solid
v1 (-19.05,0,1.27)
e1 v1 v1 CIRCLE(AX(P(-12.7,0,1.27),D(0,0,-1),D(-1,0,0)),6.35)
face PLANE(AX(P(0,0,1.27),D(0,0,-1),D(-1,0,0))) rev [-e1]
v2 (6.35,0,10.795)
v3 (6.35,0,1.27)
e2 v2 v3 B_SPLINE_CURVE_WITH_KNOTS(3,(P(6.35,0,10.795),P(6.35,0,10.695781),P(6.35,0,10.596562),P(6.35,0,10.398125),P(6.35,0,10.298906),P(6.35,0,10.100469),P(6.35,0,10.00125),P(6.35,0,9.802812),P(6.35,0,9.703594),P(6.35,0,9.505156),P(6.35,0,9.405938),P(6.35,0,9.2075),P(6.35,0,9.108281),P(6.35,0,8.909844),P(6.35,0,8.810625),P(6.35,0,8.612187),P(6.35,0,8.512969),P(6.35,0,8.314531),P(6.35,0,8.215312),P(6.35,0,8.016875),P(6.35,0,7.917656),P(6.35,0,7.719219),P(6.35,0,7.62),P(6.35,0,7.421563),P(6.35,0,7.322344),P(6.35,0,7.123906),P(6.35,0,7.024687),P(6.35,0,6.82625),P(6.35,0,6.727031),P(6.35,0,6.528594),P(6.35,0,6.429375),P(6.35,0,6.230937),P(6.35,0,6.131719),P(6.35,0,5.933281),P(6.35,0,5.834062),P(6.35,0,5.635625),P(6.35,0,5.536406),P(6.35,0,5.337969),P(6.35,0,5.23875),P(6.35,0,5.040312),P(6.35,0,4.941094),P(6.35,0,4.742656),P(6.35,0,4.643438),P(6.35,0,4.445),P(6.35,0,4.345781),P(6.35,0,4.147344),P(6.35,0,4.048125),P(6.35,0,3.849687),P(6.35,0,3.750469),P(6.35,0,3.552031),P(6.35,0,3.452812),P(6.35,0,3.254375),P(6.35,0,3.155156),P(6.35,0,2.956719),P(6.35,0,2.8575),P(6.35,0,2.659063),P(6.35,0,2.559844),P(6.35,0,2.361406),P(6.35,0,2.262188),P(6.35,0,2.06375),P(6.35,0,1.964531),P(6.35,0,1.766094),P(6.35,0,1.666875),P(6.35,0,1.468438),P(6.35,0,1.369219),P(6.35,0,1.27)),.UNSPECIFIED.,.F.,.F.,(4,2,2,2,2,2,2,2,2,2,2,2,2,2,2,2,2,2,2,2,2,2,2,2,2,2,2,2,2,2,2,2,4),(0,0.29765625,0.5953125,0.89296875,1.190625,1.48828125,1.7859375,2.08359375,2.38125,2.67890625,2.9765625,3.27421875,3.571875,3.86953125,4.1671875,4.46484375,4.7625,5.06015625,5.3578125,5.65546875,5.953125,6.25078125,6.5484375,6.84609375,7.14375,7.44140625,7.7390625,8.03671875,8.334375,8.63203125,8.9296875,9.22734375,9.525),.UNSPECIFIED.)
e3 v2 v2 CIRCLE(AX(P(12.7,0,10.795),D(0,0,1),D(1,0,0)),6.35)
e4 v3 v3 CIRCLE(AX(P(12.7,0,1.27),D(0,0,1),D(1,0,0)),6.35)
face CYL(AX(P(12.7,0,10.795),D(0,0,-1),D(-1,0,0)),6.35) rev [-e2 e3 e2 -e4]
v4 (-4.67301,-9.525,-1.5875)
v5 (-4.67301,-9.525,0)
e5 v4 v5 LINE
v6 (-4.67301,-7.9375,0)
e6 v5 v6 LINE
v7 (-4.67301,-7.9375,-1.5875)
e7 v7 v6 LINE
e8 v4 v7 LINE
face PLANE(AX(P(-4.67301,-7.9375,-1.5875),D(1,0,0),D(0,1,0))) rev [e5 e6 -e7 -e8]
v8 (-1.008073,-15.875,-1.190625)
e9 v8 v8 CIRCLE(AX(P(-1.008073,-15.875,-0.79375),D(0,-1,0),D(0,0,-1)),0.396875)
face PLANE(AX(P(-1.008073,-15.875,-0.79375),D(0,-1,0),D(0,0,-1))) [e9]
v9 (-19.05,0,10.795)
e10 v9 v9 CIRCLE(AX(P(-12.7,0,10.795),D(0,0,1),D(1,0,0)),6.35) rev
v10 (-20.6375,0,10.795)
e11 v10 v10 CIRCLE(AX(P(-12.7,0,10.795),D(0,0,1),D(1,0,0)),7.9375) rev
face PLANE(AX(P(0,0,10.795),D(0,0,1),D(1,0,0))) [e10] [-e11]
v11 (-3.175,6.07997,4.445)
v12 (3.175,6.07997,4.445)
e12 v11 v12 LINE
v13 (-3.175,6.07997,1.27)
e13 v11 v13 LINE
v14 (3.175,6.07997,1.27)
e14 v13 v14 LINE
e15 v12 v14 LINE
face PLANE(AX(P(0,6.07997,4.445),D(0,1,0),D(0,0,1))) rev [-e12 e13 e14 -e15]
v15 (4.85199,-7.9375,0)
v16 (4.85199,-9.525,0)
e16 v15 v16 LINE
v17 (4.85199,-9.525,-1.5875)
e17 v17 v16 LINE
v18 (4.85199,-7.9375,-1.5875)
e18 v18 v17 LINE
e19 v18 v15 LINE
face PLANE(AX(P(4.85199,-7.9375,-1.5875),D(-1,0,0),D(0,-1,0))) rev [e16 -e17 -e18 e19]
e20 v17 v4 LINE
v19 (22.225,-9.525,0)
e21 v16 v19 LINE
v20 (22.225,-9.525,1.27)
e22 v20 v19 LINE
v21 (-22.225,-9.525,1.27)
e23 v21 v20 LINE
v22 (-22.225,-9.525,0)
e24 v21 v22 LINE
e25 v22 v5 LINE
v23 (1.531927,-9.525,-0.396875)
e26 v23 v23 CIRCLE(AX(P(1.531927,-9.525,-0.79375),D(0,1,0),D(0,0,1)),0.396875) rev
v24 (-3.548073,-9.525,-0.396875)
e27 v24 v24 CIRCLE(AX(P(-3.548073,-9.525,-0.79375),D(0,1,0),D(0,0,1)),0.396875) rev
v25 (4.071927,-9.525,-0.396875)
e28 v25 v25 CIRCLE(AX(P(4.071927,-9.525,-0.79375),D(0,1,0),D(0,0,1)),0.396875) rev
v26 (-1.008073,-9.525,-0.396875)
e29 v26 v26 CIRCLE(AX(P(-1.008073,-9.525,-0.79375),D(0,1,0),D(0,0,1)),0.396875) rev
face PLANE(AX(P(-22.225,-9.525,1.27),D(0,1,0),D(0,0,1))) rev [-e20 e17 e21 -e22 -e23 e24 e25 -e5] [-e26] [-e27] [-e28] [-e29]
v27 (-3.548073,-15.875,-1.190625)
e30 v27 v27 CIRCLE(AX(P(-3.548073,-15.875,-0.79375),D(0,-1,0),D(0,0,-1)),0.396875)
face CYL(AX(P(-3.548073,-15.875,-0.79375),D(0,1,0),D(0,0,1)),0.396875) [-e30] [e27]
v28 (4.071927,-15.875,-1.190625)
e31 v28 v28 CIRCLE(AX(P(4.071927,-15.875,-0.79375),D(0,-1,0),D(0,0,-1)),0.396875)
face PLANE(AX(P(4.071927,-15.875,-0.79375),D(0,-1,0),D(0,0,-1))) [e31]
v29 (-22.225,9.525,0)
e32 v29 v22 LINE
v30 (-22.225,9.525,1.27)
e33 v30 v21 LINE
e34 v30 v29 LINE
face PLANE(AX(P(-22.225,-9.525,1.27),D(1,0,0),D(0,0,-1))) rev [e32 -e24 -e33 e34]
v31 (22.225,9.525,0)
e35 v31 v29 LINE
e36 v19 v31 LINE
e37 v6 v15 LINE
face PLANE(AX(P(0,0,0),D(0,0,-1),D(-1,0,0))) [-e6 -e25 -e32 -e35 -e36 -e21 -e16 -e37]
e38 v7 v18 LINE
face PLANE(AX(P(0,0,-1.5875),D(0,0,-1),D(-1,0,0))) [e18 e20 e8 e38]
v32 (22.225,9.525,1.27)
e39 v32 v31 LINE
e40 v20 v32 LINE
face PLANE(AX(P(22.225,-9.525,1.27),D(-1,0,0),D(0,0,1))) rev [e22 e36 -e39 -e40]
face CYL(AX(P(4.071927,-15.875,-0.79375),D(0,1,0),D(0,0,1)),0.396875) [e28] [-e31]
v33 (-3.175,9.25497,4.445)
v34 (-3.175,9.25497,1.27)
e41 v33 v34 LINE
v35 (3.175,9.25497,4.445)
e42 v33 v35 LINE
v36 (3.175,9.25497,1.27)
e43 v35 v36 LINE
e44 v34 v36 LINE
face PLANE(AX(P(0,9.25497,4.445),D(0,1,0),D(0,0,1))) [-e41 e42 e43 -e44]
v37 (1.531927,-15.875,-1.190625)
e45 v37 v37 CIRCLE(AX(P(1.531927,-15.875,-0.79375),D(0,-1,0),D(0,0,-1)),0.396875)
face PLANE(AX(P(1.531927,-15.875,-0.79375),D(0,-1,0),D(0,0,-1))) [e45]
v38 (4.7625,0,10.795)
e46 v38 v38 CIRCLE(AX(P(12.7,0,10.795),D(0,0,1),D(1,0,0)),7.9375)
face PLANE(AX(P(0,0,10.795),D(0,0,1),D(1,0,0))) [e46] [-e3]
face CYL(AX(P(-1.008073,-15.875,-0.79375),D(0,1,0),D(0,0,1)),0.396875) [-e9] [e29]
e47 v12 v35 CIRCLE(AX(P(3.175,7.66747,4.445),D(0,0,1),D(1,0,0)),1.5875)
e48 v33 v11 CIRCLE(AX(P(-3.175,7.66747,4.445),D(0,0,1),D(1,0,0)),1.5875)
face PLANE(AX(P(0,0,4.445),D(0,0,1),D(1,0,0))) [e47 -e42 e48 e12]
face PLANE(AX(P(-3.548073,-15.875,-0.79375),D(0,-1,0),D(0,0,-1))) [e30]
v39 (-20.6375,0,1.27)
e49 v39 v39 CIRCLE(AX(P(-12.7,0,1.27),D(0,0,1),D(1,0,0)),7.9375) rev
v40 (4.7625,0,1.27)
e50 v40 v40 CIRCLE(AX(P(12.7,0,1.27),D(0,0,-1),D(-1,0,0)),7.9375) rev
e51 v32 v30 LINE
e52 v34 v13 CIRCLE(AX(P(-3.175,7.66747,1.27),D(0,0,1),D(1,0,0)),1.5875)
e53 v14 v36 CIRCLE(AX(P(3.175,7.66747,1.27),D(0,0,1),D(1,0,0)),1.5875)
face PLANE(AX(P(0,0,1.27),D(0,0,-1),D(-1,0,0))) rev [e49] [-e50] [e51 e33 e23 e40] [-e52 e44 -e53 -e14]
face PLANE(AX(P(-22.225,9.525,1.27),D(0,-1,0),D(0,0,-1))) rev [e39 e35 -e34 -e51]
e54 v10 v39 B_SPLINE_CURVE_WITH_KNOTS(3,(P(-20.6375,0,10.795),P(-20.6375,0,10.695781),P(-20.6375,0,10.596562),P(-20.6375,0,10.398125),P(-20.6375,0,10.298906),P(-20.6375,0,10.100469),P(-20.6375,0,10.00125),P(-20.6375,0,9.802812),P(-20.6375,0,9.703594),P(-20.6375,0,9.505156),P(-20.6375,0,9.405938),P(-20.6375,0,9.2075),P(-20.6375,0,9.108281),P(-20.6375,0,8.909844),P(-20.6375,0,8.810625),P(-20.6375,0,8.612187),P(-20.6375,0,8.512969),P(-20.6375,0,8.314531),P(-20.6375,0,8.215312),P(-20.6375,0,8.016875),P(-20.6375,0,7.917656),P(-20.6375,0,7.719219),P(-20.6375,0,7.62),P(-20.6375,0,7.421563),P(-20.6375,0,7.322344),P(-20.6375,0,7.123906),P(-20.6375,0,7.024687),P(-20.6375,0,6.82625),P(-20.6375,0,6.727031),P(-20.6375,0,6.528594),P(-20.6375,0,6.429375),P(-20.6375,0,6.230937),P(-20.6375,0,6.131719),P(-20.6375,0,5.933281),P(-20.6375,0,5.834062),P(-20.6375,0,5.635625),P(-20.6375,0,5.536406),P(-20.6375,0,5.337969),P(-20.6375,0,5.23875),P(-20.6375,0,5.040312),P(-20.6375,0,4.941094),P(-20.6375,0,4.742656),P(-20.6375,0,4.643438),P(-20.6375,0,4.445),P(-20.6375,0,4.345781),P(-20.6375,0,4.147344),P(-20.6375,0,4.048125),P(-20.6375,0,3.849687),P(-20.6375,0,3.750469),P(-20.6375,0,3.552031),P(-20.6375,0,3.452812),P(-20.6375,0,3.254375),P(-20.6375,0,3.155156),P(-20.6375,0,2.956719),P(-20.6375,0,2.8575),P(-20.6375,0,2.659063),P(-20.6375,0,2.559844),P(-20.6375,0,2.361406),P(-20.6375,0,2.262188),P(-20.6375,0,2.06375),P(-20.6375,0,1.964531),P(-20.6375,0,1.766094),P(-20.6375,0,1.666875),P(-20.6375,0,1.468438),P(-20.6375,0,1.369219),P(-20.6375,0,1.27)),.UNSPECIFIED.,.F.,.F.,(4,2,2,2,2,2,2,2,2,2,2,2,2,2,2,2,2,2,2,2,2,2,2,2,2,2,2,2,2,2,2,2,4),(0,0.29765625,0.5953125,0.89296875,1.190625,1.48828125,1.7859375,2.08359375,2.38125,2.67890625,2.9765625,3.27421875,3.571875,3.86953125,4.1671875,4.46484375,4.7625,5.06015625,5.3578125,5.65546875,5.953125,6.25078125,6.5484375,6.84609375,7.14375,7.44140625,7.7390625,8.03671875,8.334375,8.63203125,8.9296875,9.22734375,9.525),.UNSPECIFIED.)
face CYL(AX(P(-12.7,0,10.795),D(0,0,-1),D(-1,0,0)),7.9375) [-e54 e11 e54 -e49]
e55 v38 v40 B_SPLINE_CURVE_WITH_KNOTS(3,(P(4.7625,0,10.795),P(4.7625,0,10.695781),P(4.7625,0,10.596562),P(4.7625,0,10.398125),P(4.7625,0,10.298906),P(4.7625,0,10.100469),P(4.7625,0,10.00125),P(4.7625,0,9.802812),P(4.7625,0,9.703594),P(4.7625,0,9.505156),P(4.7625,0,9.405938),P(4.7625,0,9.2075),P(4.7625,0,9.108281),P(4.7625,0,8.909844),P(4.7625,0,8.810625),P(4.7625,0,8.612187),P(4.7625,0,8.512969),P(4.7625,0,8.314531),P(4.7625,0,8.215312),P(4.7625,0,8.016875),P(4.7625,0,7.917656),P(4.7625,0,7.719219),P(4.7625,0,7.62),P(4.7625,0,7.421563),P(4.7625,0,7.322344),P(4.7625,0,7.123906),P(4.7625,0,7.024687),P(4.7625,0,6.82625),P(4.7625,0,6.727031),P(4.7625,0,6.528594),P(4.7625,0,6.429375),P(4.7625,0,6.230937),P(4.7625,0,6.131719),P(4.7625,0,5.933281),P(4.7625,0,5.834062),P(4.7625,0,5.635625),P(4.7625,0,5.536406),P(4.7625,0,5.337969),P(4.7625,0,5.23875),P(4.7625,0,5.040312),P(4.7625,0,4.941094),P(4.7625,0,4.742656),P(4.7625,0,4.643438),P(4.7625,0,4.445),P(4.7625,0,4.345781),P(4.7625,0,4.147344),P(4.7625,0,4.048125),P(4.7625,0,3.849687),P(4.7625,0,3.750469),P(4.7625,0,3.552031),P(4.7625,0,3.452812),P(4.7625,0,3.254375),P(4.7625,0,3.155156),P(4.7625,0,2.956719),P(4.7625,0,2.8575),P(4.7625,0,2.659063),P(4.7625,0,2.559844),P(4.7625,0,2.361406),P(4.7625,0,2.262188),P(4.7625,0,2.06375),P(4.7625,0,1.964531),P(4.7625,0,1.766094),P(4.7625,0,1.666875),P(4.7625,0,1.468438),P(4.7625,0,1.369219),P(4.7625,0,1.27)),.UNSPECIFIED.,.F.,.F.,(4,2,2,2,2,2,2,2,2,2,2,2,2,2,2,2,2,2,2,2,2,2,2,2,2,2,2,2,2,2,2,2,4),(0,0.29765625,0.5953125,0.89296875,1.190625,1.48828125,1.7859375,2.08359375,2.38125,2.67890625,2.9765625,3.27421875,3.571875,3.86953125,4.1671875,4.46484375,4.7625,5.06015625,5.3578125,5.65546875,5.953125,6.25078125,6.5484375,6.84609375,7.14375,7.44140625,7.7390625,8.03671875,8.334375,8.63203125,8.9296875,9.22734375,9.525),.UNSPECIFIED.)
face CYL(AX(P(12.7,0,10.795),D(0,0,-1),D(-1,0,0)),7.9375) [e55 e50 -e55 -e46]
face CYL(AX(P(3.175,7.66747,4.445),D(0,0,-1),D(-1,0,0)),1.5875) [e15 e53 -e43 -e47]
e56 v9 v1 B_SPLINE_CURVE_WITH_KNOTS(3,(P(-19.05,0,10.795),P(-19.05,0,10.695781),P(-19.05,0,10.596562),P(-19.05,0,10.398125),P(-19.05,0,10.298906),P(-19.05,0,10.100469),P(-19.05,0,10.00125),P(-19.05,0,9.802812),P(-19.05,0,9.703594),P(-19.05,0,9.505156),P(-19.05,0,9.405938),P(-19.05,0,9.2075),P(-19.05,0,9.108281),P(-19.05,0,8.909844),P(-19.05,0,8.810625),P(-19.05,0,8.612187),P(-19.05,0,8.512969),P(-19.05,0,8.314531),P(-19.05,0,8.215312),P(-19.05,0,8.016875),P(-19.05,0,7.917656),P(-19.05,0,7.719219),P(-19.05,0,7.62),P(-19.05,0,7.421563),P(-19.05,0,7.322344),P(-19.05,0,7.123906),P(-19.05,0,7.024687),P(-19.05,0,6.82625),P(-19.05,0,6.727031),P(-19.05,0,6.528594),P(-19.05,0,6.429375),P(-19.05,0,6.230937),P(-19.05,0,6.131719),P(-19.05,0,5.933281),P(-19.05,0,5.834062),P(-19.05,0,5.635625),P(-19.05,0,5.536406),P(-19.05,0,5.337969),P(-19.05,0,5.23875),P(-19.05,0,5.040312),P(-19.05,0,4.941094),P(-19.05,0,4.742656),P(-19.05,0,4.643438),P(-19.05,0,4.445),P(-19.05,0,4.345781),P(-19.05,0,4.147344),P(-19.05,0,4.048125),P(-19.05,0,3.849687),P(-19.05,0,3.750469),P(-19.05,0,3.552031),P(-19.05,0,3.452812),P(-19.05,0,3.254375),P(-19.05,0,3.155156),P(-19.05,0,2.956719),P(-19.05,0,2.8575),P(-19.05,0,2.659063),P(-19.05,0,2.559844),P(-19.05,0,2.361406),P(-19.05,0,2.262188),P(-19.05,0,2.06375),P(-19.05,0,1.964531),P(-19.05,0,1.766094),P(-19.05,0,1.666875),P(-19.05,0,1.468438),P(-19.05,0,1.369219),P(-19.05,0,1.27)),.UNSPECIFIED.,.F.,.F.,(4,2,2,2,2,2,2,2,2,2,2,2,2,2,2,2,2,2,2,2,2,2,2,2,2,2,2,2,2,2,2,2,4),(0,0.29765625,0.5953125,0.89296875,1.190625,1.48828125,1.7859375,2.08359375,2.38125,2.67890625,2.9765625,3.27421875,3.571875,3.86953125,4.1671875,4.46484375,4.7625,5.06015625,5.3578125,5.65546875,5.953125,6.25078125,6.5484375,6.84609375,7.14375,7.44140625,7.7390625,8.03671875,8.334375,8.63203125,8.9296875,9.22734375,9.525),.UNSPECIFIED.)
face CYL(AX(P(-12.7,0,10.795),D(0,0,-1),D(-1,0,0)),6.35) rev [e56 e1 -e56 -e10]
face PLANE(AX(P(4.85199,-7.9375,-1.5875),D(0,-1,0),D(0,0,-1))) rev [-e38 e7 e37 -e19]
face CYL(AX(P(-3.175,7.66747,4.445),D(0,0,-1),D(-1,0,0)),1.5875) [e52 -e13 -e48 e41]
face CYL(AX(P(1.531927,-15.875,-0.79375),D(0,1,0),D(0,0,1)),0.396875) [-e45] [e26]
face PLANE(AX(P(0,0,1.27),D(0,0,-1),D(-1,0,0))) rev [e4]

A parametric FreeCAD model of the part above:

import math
import FreeCAD as App
import Part
import Sketcher

V = App.Vector
Q = App.Units.Quantity


def add_polygon(sketch, points):
    """Adds a closed chain of lines whose ends are joined by coincident constraints."""
    first, n = sketch.GeometryCount, len(points)
    for a, b in zip(points, points[1:] + points[:1]):
        sketch.addGeometry(Part.LineSegment(App.Vector(*a, 0), App.Vector(*b, 0)), False)
    for i in range(n):
        sketch.addConstraint(Sketcher.Constraint("Coincident", first + i, 2, first + (i + 1) % n, 1))

doc = App.newDocument("Part")
body = doc.addObject("PartDesign::Body", "Body")

# Sketch on XY plane
sketch1 = doc.addObject("Sketcher::SketchObject", "Sketch")
body.addObject(sketch1)
sketch1.AttachmentSupport = (doc.XY_Plane, [""])
sketch1.MapMode = "FlatFace"
add_polygon(sketch1, [(-22, 10), (-22, -10), (22, -10), (22, 10)])  # lines 0-3
sketch1.addConstraint([
    Sketcher.Constraint("Vertical", 0),
    Sketcher.Constraint("Horizontal", 1),
    Sketcher.Constraint("Vertical", 2),
    Sketcher.Constraint("Horizontal", 3),
    Sketcher.Constraint("Symmetric", 0, 2, 2, 2, -1, 1),
    Sketcher.Constraint("DistanceX", 1, 1, 1, 2, Q("1.75 in")),
    Sketcher.Constraint("DistanceY", 0, 2, 0, 1, Q("0.75 in")),
])
pad1 = doc.addObject("PartDesign::Pad", "Pad")
body.addObject(pad1)
pad1.Profile = sketch1
pad1.Length = Q("0.05 in")

# Sketch on XY plane
sketch2 = doc.addObject("Sketcher::SketchObject", "Sketch001")
body.addObject(sketch2)
sketch2.AttachmentSupport = (doc.XY_Plane, [""])
sketch2.MapMode = "FlatFace"
sketch2.AttachmentOffset = App.Placement(V(0, 0, 0.05 * 25.4), App.Rotation())
sketch2.addGeometry([
    Part.Circle(V(13, 0, 0), V(0, 0, 1), 8),
    Part.Circle(V(13, 0, 0), V(0, 0, 1), 6),
    Part.Circle(V(-13, 0, 0), V(0, 0, 1), 8),
    Part.Circle(V(-13, 0, 0), V(0, 0, 1), 6),
], False)
sketch2.addConstraint([
    Sketcher.Constraint("Coincident", 1, 3, 0, 3),
    Sketcher.Constraint("Coincident", 3, 3, 2, 3),
    Sketcher.Constraint("Equal", 0, 2),
    Sketcher.Constraint("Equal", 1, 3),
    Sketcher.Constraint("Symmetric", 0, 3, 2, 3, -1, 1),
    Sketcher.Constraint("PointOnObject", 0, 3, -1),
    Sketcher.Constraint("Diameter", 1, Q("0.5 in")),
    Sketcher.Constraint("Diameter", 0, Q("0.625 in")),
    Sketcher.Constraint("DistanceX", 2, 3, 0, 3, Q("1 in")),
])
pad2 = doc.addObject("PartDesign::Pad", "Pad001")
body.addObject(pad2)
pad2.Profile = sketch2
pad2.Length = Q("0.375 in")

# Sketch on XY plane
sketch3 = doc.addObject("Sketcher::SketchObject", "Sketch002")
body.addObject(sketch3)
sketch3.AttachmentSupport = (doc.XY_Plane, [""])
sketch3.MapMode = "FlatFace"
add_polygon(sketch3, [(4.9, -7.9), (4.9, -9.5), (-4.7, -9.5), (-4.7, -7.9)])  # lines 0-3
sketch3.addConstraint([
    Sketcher.Constraint("Vertical", 0),
    Sketcher.Constraint("Horizontal", 1),
    Sketcher.Constraint("Vertical", 2),
    Sketcher.Constraint("Horizontal", 3),
    Sketcher.Constraint("DistanceX", 1, 2, 1, 1, Q("0.375 in")),
    Sketcher.Constraint("DistanceY", 0, 2, 0, 1, Q("0.0625 in")),
    Sketcher.Constraint("DistanceY", 0, 2, -1, 1, Q("0.375 in")),
    Sketcher.Constraint("DistanceX", -1, 1, 0, 2, Q("4.85199 mm")),
])
pad3 = doc.addObject("PartDesign::Pad", "Pad002")
body.addObject(pad3)
pad3.Profile = sketch3
pad3.Length = Q("0.0625 in")
pad3.Reversed = True

# Sketch on XZ plane
sketch4 = doc.addObject("Sketcher::SketchObject", "Sketch003")
body.addObject(sketch4)
sketch4.AttachmentSupport = (doc.XZ_Plane, [""])
sketch4.MapMode = "FlatFace"
sketch4.AttachmentOffset = App.Placement(V(0, 0, 0.375 * 25.4), App.Rotation())
sketch4.addGeometry([
    Part.Circle(V(-3.55, -0.79, 0), V(0, 0, 1), 0.4),
    Part.Circle(V(-1.01, -0.79, 0), V(0, 0, 1), 0.4),
    Part.Circle(V(1.53, -0.79, 0), V(0, 0, 1), 0.4),
    Part.Circle(V(4.07, -0.79, 0), V(0, 0, 1), 0.4),
], False)
sketch4.addConstraint([
    Sketcher.Constraint("Equal", 0, 1),
    Sketcher.Constraint("Equal", 1, 2),
    Sketcher.Constraint("Equal", 2, 3),
    Sketcher.Constraint("Horizontal", 0, 3, 1, 3),
    Sketcher.Constraint("Horizontal", 1, 3, 2, 3),
    Sketcher.Constraint("Horizontal", 2, 3, 3, 3),
    Sketcher.Constraint("Diameter", 0, Q("0.03125 in")),
    Sketcher.Constraint("DistanceX", 0, 3, 1, 3, Q("0.1 in")),
    Sketcher.Constraint("DistanceX", 1, 3, 2, 3, Q("0.1 in")),
    Sketcher.Constraint("DistanceX", 2, 3, 3, 3, Q("0.1 in")),
    Sketcher.Constraint("DistanceY", 0, 3, -1, 1, Q("0.03125 in")),
    Sketcher.Constraint("DistanceX", 0, 3, -1, 1, Q("3.548073 mm")),
])
pad4 = doc.addObject("PartDesign::Pad", "Pad003")
body.addObject(pad4)
pad4.Profile = sketch4
pad4.Length = Q("0.25 in")

# Sketch on XY plane
sketch5 = doc.addObject("Sketcher::SketchObject", "Sketch004")
body.addObject(sketch5)
sketch5.AttachmentSupport = (doc.XY_Plane, [""])
sketch5.MapMode = "FlatFace"
sketch5.AttachmentOffset = App.Placement(V(0, 0, 0.05 * 25.4), App.Rotation())
sketch5.addGeometry([
    Part.LineSegment(V(3.2, 9.3, 0), V(-3.2, 9.3, 0)),
    Part.ArcOfCircle(Part.Circle(V(-3.2, 7.7, 0), V(0, 0, 1), 1.6), math.radians(90), math.radians(270)),
    Part.LineSegment(V(-3.2, 6.1, 0), V(3.2, 6.1, 0)),
    Part.ArcOfCircle(Part.Circle(V(3.2, 7.7, 0), V(0, 0, 1), 1.6), math.radians(-90), math.radians(90)),
], False)
sketch5.addConstraint([
    Sketcher.Constraint("Tangent", 0, 2, 1, 1),
    Sketcher.Constraint("Tangent", 1, 2, 2, 1),
    Sketcher.Constraint("Tangent", 2, 2, 3, 1),
    Sketcher.Constraint("Tangent", 3, 2, 0, 1),
    Sketcher.Constraint("Horizontal", 0),
    Sketcher.Constraint("Horizontal", 2),
    Sketcher.Constraint("Radius", 1, Q("0.0625 in")),
    Sketcher.Constraint("DistanceX", 0, 2, 0, 1, Q("0.25 in")),
    Sketcher.Constraint("DistanceX", 1, 3, -1, 1, Q("0.125 in")),
    Sketcher.Constraint("DistanceY", -1, 1, 1, 3, Q("7.66747 mm")),
])
pad5 = doc.addObject("PartDesign::Pad", "Pad004")
body.addObject(pad5)
pad5.Profile = sketch5
pad5.Length = Q("0.125 in")

doc.recompute()
